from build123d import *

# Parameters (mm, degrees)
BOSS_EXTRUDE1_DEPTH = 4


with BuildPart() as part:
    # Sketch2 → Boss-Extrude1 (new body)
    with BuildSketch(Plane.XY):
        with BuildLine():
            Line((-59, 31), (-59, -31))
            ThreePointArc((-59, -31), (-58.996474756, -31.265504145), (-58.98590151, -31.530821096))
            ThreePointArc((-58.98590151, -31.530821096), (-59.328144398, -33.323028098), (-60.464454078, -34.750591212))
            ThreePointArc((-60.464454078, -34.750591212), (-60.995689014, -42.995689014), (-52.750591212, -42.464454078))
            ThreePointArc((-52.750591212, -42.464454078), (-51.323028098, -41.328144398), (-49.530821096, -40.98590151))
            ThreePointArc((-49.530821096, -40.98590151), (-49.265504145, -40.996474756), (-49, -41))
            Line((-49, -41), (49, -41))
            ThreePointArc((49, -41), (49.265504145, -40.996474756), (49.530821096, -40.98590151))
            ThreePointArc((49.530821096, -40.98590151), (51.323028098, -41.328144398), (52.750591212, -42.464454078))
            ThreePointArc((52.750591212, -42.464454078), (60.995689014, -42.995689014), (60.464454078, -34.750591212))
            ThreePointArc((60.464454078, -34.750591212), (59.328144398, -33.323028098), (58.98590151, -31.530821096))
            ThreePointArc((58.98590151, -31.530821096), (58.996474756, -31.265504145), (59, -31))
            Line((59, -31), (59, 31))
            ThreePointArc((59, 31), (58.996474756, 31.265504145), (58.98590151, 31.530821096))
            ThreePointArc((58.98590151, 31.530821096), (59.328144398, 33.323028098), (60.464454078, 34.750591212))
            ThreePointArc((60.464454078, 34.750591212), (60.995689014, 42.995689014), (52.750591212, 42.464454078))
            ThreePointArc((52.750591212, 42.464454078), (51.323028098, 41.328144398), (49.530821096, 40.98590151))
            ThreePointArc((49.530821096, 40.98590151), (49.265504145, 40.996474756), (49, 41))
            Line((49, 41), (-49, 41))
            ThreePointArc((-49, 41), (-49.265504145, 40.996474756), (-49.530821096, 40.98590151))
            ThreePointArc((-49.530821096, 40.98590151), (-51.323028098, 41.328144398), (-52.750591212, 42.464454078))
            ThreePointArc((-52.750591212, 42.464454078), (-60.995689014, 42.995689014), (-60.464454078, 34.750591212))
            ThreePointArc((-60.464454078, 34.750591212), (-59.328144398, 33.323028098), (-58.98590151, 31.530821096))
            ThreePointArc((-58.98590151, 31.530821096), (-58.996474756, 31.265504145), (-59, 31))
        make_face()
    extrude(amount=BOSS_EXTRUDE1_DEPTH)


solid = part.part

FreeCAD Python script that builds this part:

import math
import FreeCAD as App
import Part
import Sketcher

V = App.Vector
Q = App.Units.Quantity

doc = App.newDocument("Part")
body = doc.addObject("PartDesign::Body", "Body")

sketch1 = doc.addObject("Sketcher::SketchObject", "Sketch")
body.addObject(sketch1)
sketch1.AttachmentSupport = (doc.XY_Plane, [""])
sketch1.MapMode = "FlatFace"
sketch1.addGeometry([
    Part.LineSegment(V(-59, 31, 0), V(-59, -31, 0)),
    Part.ArcOfCircle(Part.Circle(V(-49, -31, 0), V(0, 0, 1), 10), math.radians(-180), math.radians(-176.96)),
    Part.ArcOfCircle(Part.Circle(V(-62.8, -31.7, 0), V(0, 0, 1), 3.8), math.radians(-52), math.radians(3)),
    Part.ArcOfCircle(Part.Circle(V(-57.1, -39.1, 0), V(0, 0, 1), 5.5), math.radians(128), math.radians(322)),
    Part.ArcOfCircle(Part.Circle(V(-49.7, -44.8, 0), V(0, 0, 1), 3.8), math.radians(87), math.radians(142)),
    Part.ArcOfCircle(Part.Circle(V(-49, -31, 0), V(0, 0, 1), 10), math.radians(-93.04), math.radians(-90)),
    Part.LineSegment(V(-49, -41, 0), V(49, -41, 0)),
    Part.ArcOfCircle(Part.Circle(V(49, -31, 0), V(0, 0, 1), 10), math.radians(-90), math.radians(-86.96)),
    Part.ArcOfCircle(Part.Circle(V(49.7, -44.8, 0), V(0, 0, 1), 3.8), math.radians(38), math.radians(93)),
    Part.ArcOfCircle(Part.Circle(V(57.1, -39.1, 0), V(0, 0, 1), 5.5), math.radians(-142), math.radians(52)),
    Part.ArcOfCircle(Part.Circle(V(62.8, -31.7, 0), V(0, 0, 1), 3.8), math.radians(177), math.radians(232)),
    Part.ArcOfCircle(Part.Circle(V(49, -31, 0), V(0, 0, 1), 10), math.radians(-3.04), math.radians(0)),
    Part.LineSegment(V(59, -31, 0), V(59, 31, 0)),
    Part.ArcOfCircle(Part.Circle(V(49, 31, 0), V(0, 0, 1), 10), math.radians(0), math.radians(3.04)),
    Part.ArcOfCircle(Part.Circle(V(62.8, 31.7, 0), V(0, 0, 1), 3.8), math.radians(128), math.radians(183)),
    Part.ArcOfCircle(Part.Circle(V(57.1, 39.1, 0), V(0, 0, 1), 5.5), math.radians(-52), math.radians(142)),
    Part.ArcOfCircle(Part.Circle(V(49.7, 44.8, 0), V(0, 0, 1), 3.8), math.radians(-93), math.radians(-38)),
    Part.ArcOfCircle(Part.Circle(V(49, 31, 0), V(0, 0, 1), 10), math.radians(86.96), math.radians(90)),
    Part.LineSegment(V(49, 41, 0), V(-49, 41, 0)),
    Part.ArcOfCircle(Part.Circle(V(-49, 31, 0), V(0, 0, 1), 10), math.radians(90), math.radians(93.04)),
    Part.ArcOfCircle(Part.Circle(V(-49.7, 44.8, 0), V(0, 0, 1), 3.8), math.radians(-142), math.radians(-87)),
    Part.ArcOfCircle(Part.Circle(V(-57.1, 39.1, 0), V(0, 0, 1), 5.5), math.radians(38), math.radians(232)),
    Part.ArcOfCircle(Part.Circle(V(-62.8, 31.7, 0), V(0, 0, 1), 3.8), math.radians(-3), math.radians(52)),
    Part.ArcOfCircle(Part.Circle(V(-49, 31, 0), V(0, 0, 1), 10), math.radians(176.96), math.radians(180)),
], False)
sketch1.addConstraint([
    Sketcher.Constraint("Tangent", 0, 2, 1, 1),
    Sketcher.Constraint("Tangent", 1, 2, 2, 2),
    Sketcher.Constraint("Tangent", 2, 1, 3, 1),
    Sketcher.Constraint("Tangent", 3, 2, 4, 2),
    Sketcher.Constraint("Tangent", 4, 1, 5, 1),
    Sketcher.Constraint("Tangent", 5, 2, 6, 1),
    Sketcher.Constraint("Tangent", 6, 2, 7, 1),
    Sketcher.Constraint("Tangent", 7, 2, 8, 2),
    Sketcher.Constraint("Tangent", 8, 1, 9, 1),
    Sketcher.Constraint("Tangent", 9, 2, 10, 2),
    Sketcher.Constraint("Tangent", 10, 1, 11, 1),
    Sketcher.Constraint("Tangent", 11, 2, 12, 1),
    Sketcher.Constraint("Tangent", 12, 2, 13, 1),
    Sketcher.Constraint("Tangent", 13, 2, 14, 2),
    Sketcher.Constraint("Tangent", 14, 1, 15, 1),
    Sketcher.Constraint("Tangent", 15, 2, 16, 2),
    Sketcher.Constraint("Tangent", 16, 1, 17, 1),
    Sketcher.Constraint("Tangent", 17, 2, 18, 1),
    Sketcher.Constraint("Tangent", 18, 2, 19, 1),
    Sketcher.Constraint("Tangent", 19, 2, 20, 2),
    Sketcher.Constraint("Tangent", 20, 1, 21, 1),
    Sketcher.Constraint("Tangent", 21, 2, 22, 2),
    Sketcher.Constraint("Tangent", 22, 1, 23, 1),
    Sketcher.Constraint("Tangent", 23, 2, 0, 1),
    Sketcher.Constraint("Vertical", 0),
    Sketcher.Constraint("Horizontal", 6),
    Sketcher.Constraint("Vertical", 12),
    Sketcher.Constraint("Horizontal", 18),
    Sketcher.Constraint("Coincident", 5, 3, 1, 3),
    Sketcher.Constraint("Coincident", 11, 3, 7, 3),
    Sketcher.Constraint("Coincident", 17, 3, 13, 3),
    Sketcher.Constraint("Coincident", 23, 3, 19, 3),
    Sketcher.Constraint("Equal", 2, 4),
    Sketcher.Constraint("Equal", 1, 5),
    Sketcher.Constraint("Equal", 5, 7),
    Sketcher.Constraint("Equal", 4, 8),
    Sketcher.Constraint("Equal", 3, 9),
    Sketcher.Constraint("Equal", 8, 10),
    Sketcher.Constraint("Equal", 7, 11),
    Sketcher.Constraint("Equal", 11, 13),
    Sketcher.Constraint("Equal", 10, 14),
    Sketcher.Constraint("Equal", 9, 15),
    Sketcher.Constraint("Equal", 14, 16),
    Sketcher.Constraint("Equal", 13, 17),
    Sketcher.Constraint("Equal", 17, 19),
    Sketcher.Constraint("Equal", 16, 20),
    Sketcher.Constraint("Equal", 15, 21),
    Sketcher.Constraint("Equal", 20, 22),
    Sketcher.Constraint("Equal", 19, 23),
    Sketcher.Constraint("Symmetric", 1, 3, 13, 3, -1, 1),
    Sketcher.Constraint("Symmetric", 3, 3, 15, 3, -1, 1),
    Sketcher.Constraint("Symmetric", 9, 3, 21, 3, -1, 1),
    Sketcher.Constraint("Symmetric", 3, 3, 9, 3, -2),
    Sketcher.Constraint("Radius", 1, Q("10 mm")),
    Sketcher.Constraint("Radius", 3, Q("5.5 mm")),
    Sketcher.Constraint("DistanceX", 6, 1, 6, 2, Q("98 mm")),
    Sketcher.Constraint("DistanceY", 0, 2, 0, 1, Q("62 mm")),
    Sketcher.Constraint("Radius", 2, Q("3.81 mm")),
    Sketcher.Constraint("DistanceX", 3, 3, -1, 1, Q("57.106602 mm")),
    Sketcher.Constraint("DistanceY", 3, 3, -1, 1, Q("39.106602 mm")),
])
pad1 = doc.addObject("PartDesign::Pad", "Pad")
body.addObject(pad1)
pad1.Profile = sketch1
pad1.Length = 4

doc.recompute()
